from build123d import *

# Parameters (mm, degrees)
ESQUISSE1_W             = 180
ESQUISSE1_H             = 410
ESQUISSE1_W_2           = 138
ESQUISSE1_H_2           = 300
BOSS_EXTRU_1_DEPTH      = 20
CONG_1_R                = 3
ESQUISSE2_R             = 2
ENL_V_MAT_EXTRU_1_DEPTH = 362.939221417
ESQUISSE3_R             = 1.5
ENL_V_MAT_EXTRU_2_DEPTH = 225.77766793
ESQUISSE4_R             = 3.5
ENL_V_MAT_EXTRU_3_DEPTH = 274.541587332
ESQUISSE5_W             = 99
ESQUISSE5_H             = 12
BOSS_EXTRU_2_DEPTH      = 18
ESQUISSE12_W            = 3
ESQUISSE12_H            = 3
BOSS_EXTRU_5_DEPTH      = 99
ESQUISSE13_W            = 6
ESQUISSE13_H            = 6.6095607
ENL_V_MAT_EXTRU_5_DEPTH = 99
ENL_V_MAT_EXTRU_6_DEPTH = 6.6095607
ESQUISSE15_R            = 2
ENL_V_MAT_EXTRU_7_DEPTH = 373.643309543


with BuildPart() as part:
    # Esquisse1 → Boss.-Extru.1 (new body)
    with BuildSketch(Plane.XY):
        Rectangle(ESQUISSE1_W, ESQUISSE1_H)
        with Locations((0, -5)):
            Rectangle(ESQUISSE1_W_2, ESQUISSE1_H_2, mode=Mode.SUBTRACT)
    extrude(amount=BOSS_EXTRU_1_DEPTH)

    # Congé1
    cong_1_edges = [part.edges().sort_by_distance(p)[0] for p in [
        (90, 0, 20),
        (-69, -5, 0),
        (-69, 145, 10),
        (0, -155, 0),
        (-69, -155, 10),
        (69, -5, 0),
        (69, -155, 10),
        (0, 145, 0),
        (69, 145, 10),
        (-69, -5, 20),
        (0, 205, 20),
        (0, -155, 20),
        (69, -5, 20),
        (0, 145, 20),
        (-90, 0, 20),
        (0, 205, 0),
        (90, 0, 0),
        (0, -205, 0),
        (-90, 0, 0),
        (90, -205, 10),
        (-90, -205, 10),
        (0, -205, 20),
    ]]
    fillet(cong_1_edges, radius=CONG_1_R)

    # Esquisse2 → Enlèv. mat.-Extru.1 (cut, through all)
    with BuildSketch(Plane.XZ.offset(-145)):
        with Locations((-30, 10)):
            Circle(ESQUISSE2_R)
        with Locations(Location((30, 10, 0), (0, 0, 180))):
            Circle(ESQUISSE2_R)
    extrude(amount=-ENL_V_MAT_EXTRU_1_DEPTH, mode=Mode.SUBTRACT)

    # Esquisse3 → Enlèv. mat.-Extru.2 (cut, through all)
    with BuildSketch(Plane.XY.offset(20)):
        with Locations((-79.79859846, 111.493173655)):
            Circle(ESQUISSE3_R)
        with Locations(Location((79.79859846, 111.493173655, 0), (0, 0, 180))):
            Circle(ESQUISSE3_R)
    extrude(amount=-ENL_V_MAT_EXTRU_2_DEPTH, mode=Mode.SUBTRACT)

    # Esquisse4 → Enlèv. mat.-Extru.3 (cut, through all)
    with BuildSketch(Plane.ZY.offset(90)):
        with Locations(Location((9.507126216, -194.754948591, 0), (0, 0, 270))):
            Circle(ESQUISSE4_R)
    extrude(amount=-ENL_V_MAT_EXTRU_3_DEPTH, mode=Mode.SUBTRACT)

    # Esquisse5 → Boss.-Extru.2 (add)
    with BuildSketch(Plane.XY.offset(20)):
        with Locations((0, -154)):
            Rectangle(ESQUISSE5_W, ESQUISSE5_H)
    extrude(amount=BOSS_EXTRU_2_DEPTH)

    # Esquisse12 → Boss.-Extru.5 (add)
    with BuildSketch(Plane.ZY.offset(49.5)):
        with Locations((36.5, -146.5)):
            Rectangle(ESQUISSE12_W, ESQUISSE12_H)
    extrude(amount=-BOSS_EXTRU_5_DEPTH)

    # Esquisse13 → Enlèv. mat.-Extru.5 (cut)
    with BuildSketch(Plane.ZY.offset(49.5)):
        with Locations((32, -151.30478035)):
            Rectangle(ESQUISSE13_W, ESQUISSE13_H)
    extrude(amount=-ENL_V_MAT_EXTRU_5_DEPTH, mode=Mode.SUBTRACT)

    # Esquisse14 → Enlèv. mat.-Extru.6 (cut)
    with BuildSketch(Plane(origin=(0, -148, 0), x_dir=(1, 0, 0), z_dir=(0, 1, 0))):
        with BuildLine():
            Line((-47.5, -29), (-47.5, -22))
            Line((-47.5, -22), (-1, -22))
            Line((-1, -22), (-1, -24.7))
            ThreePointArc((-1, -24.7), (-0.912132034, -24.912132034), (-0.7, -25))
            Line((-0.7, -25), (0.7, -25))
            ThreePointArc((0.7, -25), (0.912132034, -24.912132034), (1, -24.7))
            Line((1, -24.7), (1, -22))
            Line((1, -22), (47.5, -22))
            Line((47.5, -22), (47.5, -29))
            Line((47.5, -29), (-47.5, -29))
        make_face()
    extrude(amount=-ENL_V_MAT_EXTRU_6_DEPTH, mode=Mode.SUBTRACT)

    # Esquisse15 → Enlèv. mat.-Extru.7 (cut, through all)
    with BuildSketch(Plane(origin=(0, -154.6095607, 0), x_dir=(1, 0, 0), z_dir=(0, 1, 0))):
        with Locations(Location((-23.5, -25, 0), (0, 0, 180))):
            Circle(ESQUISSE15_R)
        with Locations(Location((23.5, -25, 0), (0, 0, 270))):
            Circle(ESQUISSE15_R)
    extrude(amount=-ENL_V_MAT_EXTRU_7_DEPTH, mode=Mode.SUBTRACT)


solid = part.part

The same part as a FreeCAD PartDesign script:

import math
import FreeCAD as App
import Part
import Sketcher

V = App.Vector
Q = App.Units.Quantity


def edges_at(feature, points):
    """Names of the edges that pass closest to the given points."""
    edges = feature.Shape.Edges
    near = lambda p: min(range(len(edges)), key=lambda i: edges[i].distToShape(Part.Vertex(*p))[0])
    return sorted({f"Edge{near(p) + 1}" for p in points})


def add_polygon(sketch, points):
    """Adds a closed chain of lines whose ends are joined by coincident constraints."""
    first, n = sketch.GeometryCount, len(points)
    for a, b in zip(points, points[1:] + points[:1]):
        sketch.addGeometry(Part.LineSegment(App.Vector(*a, 0), App.Vector(*b, 0)), False)
    for i in range(n):
        sketch.addConstraint(Sketcher.Constraint("Coincident", first + i, 2, first + (i + 1) % n, 1))

doc = App.newDocument("Part")
body = doc.addObject("PartDesign::Body", "Body")

sketch1 = body.newObject("Sketcher::SketchObject", "Sketch")
sketch1.AttachmentSupport = (doc.getObject("XY_Plane"), [""])
sketch1.MapMode = "FlatFace"
add_polygon(sketch1, [(-90, 205), (-90, -205), (90, -205), (90, 205)])
add_polygon(sketch1, [(69, -155), (-69, -155), (-69, 145), (69, 145)])
sketch1.addConstraint([
    Sketcher.Constraint("Vertical", 0),
    Sketcher.Constraint("Horizontal", 1),
    Sketcher.Constraint("Vertical", 2),
    Sketcher.Constraint("Horizontal", 3),
    Sketcher.Constraint("Horizontal", 4),
    Sketcher.Constraint("Vertical", 5),
    Sketcher.Constraint("Horizontal", 6),
    Sketcher.Constraint("Vertical", 7),
    Sketcher.Constraint("Symmetric", 0, 2, 2, 2, -1, 1),
    Sketcher.Constraint("DistanceX", 1, 1, 1, 2, Q("180 mm")),
    Sketcher.Constraint("DistanceX", 4, 2, 4, 1, Q("138 mm")),
    Sketcher.Constraint("DistanceY", 0, 2, 0, 1, Q("410 mm")),
    Sketcher.Constraint("DistanceY", 5, 1, 5, 2, Q("300 mm")),
    Sketcher.Constraint("DistanceX", 4, 2, -1, 1, Q("69 mm")),
    Sketcher.Constraint("DistanceY", 4, 2, -1, 1, Q("155 mm")),
])
pad1 = body.newObject("PartDesign::Pad", "Pad")
pad1.Profile = sketch1
pad1.Length = 20
doc.recompute()

fillet = body.newObject("PartDesign::Fillet", "Fillet")
fillet.Base = (pad1, edges_at(pad1, [
    (90, 0, 20),
    (-69, -5, 0),
    (-69, 145, 10),
    (0, -155, 0),
    (-69, -155, 10),
    (69, -5, 0),
    (69, -155, 10),
    (0, 145, 0),
    (69, 145, 10),
    (-69, -5, 20),
    (0, 205, 20),
    (0, -155, 20),
    (69, -5, 20),
    (0, 145, 20),
    (-90, 0, 20),
    (0, 205, 0),
    (90, 0, 0),
    (0, -205, 0),
    (-90, 0, 0),
    (90, -205, 10),
    (-90, -205, 10),
    (0, -205, 20),
]))
fillet.Radius = 3

sketch2 = body.newObject("Sketcher::SketchObject", "Sketch001")
sketch2.AttachmentSupport = (doc.getObject("XZ_Plane"), [""])
sketch2.MapMode = "FlatFace"
sketch2.AttachmentOffset = App.Placement(V(0, 0, -145), App.Rotation())
sketch2.addGeometry([
    Part.Circle(V(-30, 10, 0), V(0, 0, 1), 2),
    Part.Circle(V(30, 10, 0), V(0, 0, 1), 2),
], False)
sketch2.addConstraint([
    Sketcher.Constraint("Equal", 0, 1),
    Sketcher.Constraint("Symmetric", 0, 3, 1, 3, -2),
    Sketcher.Constraint("Diameter", 0, Q("4 mm")),
    Sketcher.Constraint("DistanceX", 0, 3, -1, 1, Q("30 mm")),
    Sketcher.Constraint("DistanceY", -1, 1, 0, 3, Q("10 mm")),
])
pocket1 = body.newObject("PartDesign::Pocket", "Pocket")
pocket1.Profile = sketch2
pocket1.Type = "ThroughAll"

sketch3 = body.newObject("Sketcher::SketchObject", "Sketch002")
sketch3.AttachmentSupport = (doc.getObject("XY_Plane"), [""])
sketch3.MapMode = "FlatFace"
sketch3.AttachmentOffset = App.Placement(V(0, 0, 20), App.Rotation())
sketch3.addGeometry([
    Part.Circle(V(-79.8, 111.5, 0), V(0, 0, 1), 1.5),
    Part.Circle(V(79.8, 111.5, 0), V(0, 0, 1), 1.5),
], False)
sketch3.addConstraint([
    Sketcher.Constraint("Equal", 0, 1),
    Sketcher.Constraint("Symmetric", 0, 3, 1, 3, -2),
    Sketcher.Constraint("Diameter", 0, Q("3 mm")),
    Sketcher.Constraint("DistanceX", 0, 3, -1, 1, Q("79.798598 mm")),
    Sketcher.Constraint("DistanceY", -1, 1, 0, 3, Q("111.493174 mm")),
])
pocket2 = body.newObject("PartDesign::Pocket", "Pocket001")
pocket2.Profile = sketch3
pocket2.Type = "ThroughAll"

sketch4 = body.newObject("Sketcher::SketchObject", "Sketch003")
sketch4.AttachmentSupport = (doc.getObject("YZ_Plane"), [""])
sketch4.MapMode = "FlatFace"
sketch4.AttachmentOffset = App.Placement(V(0, 0, -90), App.Rotation())
sketch4.addGeometry(Part.Circle(V(-194.8, 9.5, 0), V(0, 0, 1), 3.5), False)
sketch4.addConstraint([
    Sketcher.Constraint("Diameter", 0, Q("7 mm")),
    Sketcher.Constraint("DistanceX", 0, 3, -1, 1, Q("194.754949 mm")),
    Sketcher.Constraint("DistanceY", -1, 1, 0, 3, Q("9.507126 mm")),
])
pocket3 = body.newObject("PartDesign::Pocket", "Pocket002")
pocket3.Profile = sketch4
pocket3.Type = "ThroughAll"
pocket3.Reversed = True

sketch5 = body.newObject("Sketcher::SketchObject", "Sketch004")
sketch5.AttachmentSupport = (doc.getObject("XY_Plane"), [""])
sketch5.MapMode = "FlatFace"
sketch5.AttachmentOffset = App.Placement(V(0, 0, 20), App.Rotation())
add_polygon(sketch5, [(-50, -148), (-50, -160), (50, -160), (50, -148)])
sketch5.addConstraint([
    Sketcher.Constraint("Vertical", 0),
    Sketcher.Constraint("Horizontal", 1),
    Sketcher.Constraint("Vertical", 2),
    Sketcher.Constraint("Horizontal", 3),
    Sketcher.Constraint("DistanceX", 1, 1, 1, 2, Q("99 mm")),
    Sketcher.Constraint("DistanceY", 0, 2, 0, 1, Q("12 mm")),
    Sketcher.Constraint("DistanceY", 0, 2, -1, 1, Q("160 mm")),
    Sketcher.Constraint("DistanceX", 0, 2, -1, 1, Q("49.5 mm")),
])
pad2 = body.newObject("PartDesign::Pad", "Pad001")
pad2.Profile = sketch5
pad2.Length = 18

sketch6 = body.newObject("Sketcher::SketchObject", "Sketch005")
sketch6.AttachmentSupport = (doc.getObject("YZ_Plane"), [""])
sketch6.MapMode = "FlatFace"
sketch6.AttachmentOffset = App.Placement(V(0, 0, -49.5), App.Rotation())
add_polygon(sketch6, [(-145, 35), (-148, 35), (-148, 38), (-145, 38)])
sketch6.addConstraint([
    Sketcher.Constraint("Horizontal", 0),
    Sketcher.Constraint("Vertical", 1),
    Sketcher.Constraint("Horizontal", 2),
    Sketcher.Constraint("Vertical", 3),
    Sketcher.Constraint("Equal", 2, 1),
    Sketcher.Constraint("DistanceX", 0, 2, 0, 1, Q("3 mm")),
    Sketcher.Constraint("DistanceX", 0, 2, -1, 1, Q("148 mm")),
    Sketcher.Constraint("DistanceY", -1, 1, 0, 2, Q("35 mm")),
])
pad3 = body.newObject("PartDesign::Pad", "Pad002")
pad3.Profile = sketch6
pad3.Length = 99

sketch7 = body.newObject("Sketcher::SketchObject", "Sketch006")
sketch7.AttachmentSupport = (doc.getObject("YZ_Plane"), [""])
sketch7.MapMode = "FlatFace"
sketch7.AttachmentOffset = App.Placement(V(0, 0, -49.5), App.Rotation())
add_polygon(sketch7, [(-148, 29), (-155, 29), (-155, 35), (-148, 35)])
sketch7.addConstraint([
    Sketcher.Constraint("Horizontal", 0),
    Sketcher.Constraint("Vertical", 1),
    Sketcher.Constraint("Horizontal", 2),
    Sketcher.Constraint("Vertical", 3),
    Sketcher.Constraint("DistanceY", 1, 1, 1, 2, Q("6 mm")),
    Sketcher.Constraint("DistanceY", -1, 1, 0, 2, Q("29 mm")),
    Sketcher.Constraint("DistanceX", 2, 2, -1, 1, Q("148 mm")),
    Sketcher.Constraint("DistanceX", 0, 2, 0, 1, Q("6.609561 mm")),
])
pocket4 = body.newObject("PartDesign::Pocket", "Pocket003")
pocket4.Profile = sketch7
pocket4.Length = 99
pocket4.Reversed = True

sketch8 = body.newObject("Sketcher::SketchObject", "Sketch007")
sketch8.AttachmentSupport = (doc.getObject("XZ_Plane"), [""])
sketch8.MapMode = "FlatFace"
sketch8.AttachmentOffset = App.Placement(V(0, 0, 148), App.Rotation())
sketch8.addGeometry([
    Part.LineSegment(V(-47.5, 22, 0), V(-47.5, 29, 0)),
    Part.LineSegment(V(-47.5, 29, 0), V(47.5, 29, 0)),
    Part.LineSegment(V(47.5, 29, 0), V(47.5, 22, 0)),
    Part.LineSegment(V(47.5, 22, 0), V(1, 22, 0)),
    Part.LineSegment(V(1, 22, 0), V(1, 24.7, 0)),
    Part.ArcOfCircle(Part.Circle(V(0.7, 24.7, 0), V(0, 0, 1), 0.3), math.radians(0), math.radians(90)),
    Part.LineSegment(V(0.7, 25, 0), V(-0.7, 25, 0)),
    Part.ArcOfCircle(Part.Circle(V(-0.7, 24.7, 0), V(0, 0, 1), 0.3), math.radians(90), math.radians(180)),
    Part.LineSegment(V(-1, 24.7, 0), V(-1, 22, 0)),
    Part.LineSegment(V(-1, 22, 0), V(-47.5, 22, 0)),
], False)
sketch8.addConstraint([
    Sketcher.Constraint("Coincident", 0, 2, 1, 1),
    Sketcher.Constraint("Coincident", 1, 2, 2, 1),
    Sketcher.Constraint("Coincident", 2, 2, 3, 1),
    Sketcher.Constraint("Coincident", 3, 2, 4, 1),
    Sketcher.Constraint("Tangent", 4, 2, 5, 1),
    Sketcher.Constraint("Tangent", 5, 2, 6, 1),
    Sketcher.Constraint("Tangent", 6, 2, 7, 1),
    Sketcher.Constraint("Tangent", 7, 2, 8, 1),
    Sketcher.Constraint("Coincident", 8, 2, 9, 1),
    Sketcher.Constraint("Coincident", 9, 2, 0, 1),
    Sketcher.Constraint("Vertical", 0),
    Sketcher.Constraint("Horizontal", 1),
    Sketcher.Constraint("Vertical", 2),
    Sketcher.Constraint("Horizontal", 3),
    Sketcher.Constraint("Vertical", 4),
    Sketcher.Constraint("Horizontal", 6),
    Sketcher.Constraint("Vertical", 8),
    Sketcher.Constraint("Horizontal", 9),
    Sketcher.Constraint("Equal", 5, 7),
    Sketcher.Constraint("Symmetric", 3, 2, 8, 2, -2),
    Sketcher.Constraint("Equal", 3, 9),
    Sketcher.Constraint("Radius", 5, Q("0.3 mm")),
    Sketcher.Constraint("DistanceX", 1, 1, 1, 2, Q("95 mm")),
    Sketcher.Constraint("DistanceY", 0, 1, 0, 2, Q("7 mm")),
    Sketcher.Constraint("DistanceX", 3, 2, 3, 1, Q("46.5 mm")),
    Sketcher.Constraint("DistanceY", 4, 1, 4, 2, Q("2.7 mm")),
    Sketcher.Constraint("DistanceY", -1, 1, 0, 2, Q("29 mm")),
])
pocket5 = body.newObject("PartDesign::Pocket", "Pocket004")
pocket5.Profile = sketch8
pocket5.Length = 6.609561
pocket5.Reversed = True

sketch9 = body.newObject("Sketcher::SketchObject", "Sketch008")
sketch9.AttachmentSupport = (doc.getObject("XZ_Plane"), [""])
sketch9.MapMode = "FlatFace"
sketch9.AttachmentOffset = App.Placement(V(0, 0, 154.609561), App.Rotation())
sketch9.addGeometry([
    Part.Circle(V(-23.5, 25, 0), V(0, 0, 1), 2),
    Part.Circle(V(23.5, 25, 0), V(0, 0, 1), 2),
], False)
sketch9.addConstraint([
    Sketcher.Constraint("Equal", 0, 1),
    Sketcher.Constraint("Symmetric", 0, 3, 1, 3, -2),
    Sketcher.Constraint("Diameter", 0, Q("4 mm")),
    Sketcher.Constraint("DistanceY", -1, 1, 0, 3, Q("25 mm")),
    Sketcher.Constraint("DistanceX", 0, 3, 1, 3, Q("47 mm")),
])
pocket6 = body.newObject("PartDesign::Pocket", "Pocket005")
pocket6.Profile = sketch9
pocket6.Type = "ThroughAll"
pocket6.Reversed = True

doc.recompute()
